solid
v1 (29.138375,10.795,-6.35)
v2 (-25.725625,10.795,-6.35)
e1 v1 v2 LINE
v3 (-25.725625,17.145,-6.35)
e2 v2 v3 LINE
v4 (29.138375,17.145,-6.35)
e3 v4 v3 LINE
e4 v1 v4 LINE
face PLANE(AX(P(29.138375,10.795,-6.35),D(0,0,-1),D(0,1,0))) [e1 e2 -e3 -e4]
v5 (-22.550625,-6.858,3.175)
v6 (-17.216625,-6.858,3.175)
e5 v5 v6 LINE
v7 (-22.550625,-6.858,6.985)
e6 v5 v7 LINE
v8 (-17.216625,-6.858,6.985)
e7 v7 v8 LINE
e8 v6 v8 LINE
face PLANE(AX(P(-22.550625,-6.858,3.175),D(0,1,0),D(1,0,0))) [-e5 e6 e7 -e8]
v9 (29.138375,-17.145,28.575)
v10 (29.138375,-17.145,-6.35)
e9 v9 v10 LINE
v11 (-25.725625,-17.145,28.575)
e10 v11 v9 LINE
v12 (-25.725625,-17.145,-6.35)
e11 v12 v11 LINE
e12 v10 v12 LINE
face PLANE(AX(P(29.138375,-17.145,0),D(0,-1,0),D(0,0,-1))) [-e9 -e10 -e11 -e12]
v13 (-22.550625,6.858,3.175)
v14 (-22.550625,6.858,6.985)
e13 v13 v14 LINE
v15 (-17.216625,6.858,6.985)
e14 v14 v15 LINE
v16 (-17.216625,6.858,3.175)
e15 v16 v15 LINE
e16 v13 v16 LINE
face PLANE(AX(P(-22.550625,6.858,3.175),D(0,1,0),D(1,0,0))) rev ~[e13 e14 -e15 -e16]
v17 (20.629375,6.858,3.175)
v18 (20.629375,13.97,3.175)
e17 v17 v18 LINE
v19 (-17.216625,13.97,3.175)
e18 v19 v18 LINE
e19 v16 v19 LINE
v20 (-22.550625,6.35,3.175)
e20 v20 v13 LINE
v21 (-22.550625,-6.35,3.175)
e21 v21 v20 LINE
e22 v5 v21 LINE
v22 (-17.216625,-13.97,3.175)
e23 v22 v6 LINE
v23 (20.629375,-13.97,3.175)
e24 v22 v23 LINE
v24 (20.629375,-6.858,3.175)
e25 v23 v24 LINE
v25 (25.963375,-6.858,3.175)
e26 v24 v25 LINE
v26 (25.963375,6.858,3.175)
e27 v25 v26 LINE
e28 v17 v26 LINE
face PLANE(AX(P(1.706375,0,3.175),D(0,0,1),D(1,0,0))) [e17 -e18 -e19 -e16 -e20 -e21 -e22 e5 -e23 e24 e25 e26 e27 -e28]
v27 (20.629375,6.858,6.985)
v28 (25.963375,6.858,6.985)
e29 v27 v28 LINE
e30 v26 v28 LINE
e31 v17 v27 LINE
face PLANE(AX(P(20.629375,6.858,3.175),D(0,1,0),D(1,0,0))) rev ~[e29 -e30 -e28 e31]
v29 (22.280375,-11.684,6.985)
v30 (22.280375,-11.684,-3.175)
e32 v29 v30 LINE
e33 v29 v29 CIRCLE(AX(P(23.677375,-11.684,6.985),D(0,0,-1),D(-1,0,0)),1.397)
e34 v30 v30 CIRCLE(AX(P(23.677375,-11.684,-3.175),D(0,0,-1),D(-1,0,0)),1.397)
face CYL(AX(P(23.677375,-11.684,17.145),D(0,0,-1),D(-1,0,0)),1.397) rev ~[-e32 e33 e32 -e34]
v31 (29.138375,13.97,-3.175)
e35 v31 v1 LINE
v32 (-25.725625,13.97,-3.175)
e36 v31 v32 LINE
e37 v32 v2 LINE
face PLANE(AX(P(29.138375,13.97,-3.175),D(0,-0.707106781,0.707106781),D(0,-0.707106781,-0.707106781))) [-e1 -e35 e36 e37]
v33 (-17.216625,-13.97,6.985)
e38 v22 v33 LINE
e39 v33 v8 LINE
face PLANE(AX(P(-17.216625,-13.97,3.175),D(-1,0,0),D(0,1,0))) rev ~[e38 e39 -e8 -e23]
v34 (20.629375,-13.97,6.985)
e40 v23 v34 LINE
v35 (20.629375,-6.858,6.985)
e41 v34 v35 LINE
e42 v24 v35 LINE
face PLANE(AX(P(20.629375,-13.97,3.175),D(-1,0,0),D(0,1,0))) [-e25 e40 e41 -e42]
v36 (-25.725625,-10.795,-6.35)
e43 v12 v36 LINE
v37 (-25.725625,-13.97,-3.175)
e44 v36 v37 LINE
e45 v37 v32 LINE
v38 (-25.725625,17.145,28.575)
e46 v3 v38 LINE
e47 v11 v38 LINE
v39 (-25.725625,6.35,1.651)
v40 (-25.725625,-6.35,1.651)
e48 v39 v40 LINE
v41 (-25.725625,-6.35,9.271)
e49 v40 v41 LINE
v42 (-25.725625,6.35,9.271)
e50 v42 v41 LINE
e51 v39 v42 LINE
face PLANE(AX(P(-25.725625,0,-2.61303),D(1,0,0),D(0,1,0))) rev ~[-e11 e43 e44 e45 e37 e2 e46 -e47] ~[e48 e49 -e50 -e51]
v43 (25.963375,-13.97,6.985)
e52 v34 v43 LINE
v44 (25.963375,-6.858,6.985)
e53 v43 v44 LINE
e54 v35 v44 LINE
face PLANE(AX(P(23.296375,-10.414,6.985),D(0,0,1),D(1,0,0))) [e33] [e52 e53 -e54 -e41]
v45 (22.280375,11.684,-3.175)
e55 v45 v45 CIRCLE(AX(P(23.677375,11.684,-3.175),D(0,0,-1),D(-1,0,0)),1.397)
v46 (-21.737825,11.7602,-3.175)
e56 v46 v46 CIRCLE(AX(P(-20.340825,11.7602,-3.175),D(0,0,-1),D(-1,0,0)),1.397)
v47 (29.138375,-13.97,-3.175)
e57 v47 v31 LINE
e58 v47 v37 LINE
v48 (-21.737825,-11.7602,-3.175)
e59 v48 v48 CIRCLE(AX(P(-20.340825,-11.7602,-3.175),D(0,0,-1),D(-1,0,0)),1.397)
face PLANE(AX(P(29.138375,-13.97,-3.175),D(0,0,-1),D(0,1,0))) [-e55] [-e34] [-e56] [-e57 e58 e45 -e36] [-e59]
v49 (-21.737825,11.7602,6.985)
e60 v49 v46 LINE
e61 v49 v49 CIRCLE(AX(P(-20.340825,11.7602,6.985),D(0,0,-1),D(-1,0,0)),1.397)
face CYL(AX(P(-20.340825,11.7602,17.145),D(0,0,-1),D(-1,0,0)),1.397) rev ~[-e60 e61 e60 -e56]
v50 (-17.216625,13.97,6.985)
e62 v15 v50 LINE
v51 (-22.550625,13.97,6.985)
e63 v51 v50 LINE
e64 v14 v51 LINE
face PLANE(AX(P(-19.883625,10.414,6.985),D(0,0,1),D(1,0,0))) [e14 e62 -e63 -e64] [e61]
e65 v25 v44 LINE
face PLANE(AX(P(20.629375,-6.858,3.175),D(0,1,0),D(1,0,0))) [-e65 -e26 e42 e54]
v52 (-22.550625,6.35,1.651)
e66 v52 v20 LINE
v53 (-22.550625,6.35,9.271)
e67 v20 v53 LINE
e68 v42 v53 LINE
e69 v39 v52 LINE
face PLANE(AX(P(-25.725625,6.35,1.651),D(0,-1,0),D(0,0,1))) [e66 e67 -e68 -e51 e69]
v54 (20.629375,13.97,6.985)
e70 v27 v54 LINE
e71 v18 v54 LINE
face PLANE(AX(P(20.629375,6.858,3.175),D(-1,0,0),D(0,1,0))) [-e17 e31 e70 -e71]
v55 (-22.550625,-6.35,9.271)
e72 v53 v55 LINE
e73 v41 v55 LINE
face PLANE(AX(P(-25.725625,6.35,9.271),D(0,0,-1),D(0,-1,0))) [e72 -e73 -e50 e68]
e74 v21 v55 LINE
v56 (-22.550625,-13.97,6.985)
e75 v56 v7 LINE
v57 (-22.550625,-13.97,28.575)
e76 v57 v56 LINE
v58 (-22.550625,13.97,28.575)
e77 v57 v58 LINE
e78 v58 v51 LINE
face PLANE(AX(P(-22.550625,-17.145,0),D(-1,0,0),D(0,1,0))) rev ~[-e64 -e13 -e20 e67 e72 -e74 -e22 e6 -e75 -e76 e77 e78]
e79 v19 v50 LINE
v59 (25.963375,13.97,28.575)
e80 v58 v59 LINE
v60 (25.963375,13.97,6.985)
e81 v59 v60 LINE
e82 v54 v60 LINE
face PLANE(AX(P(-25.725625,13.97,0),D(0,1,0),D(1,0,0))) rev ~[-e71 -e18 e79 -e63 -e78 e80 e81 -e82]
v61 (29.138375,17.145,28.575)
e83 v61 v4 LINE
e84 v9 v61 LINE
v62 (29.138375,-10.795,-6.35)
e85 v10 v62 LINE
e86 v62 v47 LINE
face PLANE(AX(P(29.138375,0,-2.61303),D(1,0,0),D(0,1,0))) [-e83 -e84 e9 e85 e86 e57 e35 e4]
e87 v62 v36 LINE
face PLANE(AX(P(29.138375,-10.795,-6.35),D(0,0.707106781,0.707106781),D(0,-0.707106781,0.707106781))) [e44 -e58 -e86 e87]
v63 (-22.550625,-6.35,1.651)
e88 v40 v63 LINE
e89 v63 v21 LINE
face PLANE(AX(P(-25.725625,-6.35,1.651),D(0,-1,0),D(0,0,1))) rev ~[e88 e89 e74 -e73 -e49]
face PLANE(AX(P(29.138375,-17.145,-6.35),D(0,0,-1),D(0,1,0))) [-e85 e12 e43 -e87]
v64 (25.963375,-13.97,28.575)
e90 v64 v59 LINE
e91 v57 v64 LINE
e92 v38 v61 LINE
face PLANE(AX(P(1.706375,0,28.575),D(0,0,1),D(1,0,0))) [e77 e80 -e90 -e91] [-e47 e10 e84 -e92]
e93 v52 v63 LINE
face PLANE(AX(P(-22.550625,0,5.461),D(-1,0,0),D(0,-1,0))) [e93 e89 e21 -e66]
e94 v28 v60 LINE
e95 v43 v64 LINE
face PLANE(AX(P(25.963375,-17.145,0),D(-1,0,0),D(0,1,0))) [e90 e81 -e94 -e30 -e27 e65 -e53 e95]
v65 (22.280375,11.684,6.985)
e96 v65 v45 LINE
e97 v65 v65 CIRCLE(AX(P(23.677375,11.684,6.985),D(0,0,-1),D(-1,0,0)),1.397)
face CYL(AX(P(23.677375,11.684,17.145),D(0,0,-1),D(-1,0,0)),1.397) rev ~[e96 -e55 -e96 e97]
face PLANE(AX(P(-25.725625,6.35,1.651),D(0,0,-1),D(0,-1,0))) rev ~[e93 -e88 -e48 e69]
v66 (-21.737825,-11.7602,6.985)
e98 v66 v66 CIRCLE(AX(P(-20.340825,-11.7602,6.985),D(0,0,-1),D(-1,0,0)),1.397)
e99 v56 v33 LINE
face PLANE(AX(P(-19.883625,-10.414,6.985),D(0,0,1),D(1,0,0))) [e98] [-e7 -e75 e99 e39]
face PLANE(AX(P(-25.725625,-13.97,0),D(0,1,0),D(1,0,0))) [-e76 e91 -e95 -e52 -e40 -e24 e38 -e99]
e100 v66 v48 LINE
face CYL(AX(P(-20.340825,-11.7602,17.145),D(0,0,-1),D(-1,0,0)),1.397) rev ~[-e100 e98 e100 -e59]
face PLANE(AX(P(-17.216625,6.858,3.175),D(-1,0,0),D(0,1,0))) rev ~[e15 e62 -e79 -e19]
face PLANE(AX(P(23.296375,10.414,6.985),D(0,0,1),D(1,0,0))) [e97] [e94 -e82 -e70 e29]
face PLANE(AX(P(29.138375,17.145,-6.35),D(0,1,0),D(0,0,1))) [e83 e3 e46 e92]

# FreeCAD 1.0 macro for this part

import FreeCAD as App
import Part
import Sketcher
Q = App.Units.Quantity


def faces_at(feature, points):
    """Names of the faces that lie closest to the given points."""
    faces = feature.Shape.Faces
    near = lambda p: min(range(len(faces)), key=lambda i: faces[i].distToShape(Part.Vertex(*p))[0])
    return sorted({f"Face{near(p) + 1}" for p in points})


def add_polygon(sketch, points):
    """Adds a closed chain of lines whose ends are joined by coincident constraints."""
    first, n = sketch.GeometryCount, len(points)
    for a, b in zip(points, points[1:] + points[:1]):
        sketch.addGeometry(Part.LineSegment(App.Vector(*a, 0), App.Vector(*b, 0)), False)
    for i in range(n):
        sketch.addConstraint(Sketcher.Constraint("Coincident", first + i, 2, first + (i + 1) % n, 1))

doc = App.newDocument("Part")
body = doc.addObject("PartDesign::Body", "Body")

sketch1 = doc.addObject("Sketcher::SketchObject", "Sketch")
body.addObject(sketch1)
sketch1.AttachmentSupport = (doc.XY_Plane, [""])
sketch1.MapMode = "FlatFace"
add_polygon(sketch1, [(-26, 17), (-26, -17), (29, -17), (29, 17)])
sketch1.addConstraint([
    Sketcher.Constraint("Vertical", 0),
    Sketcher.Constraint("Horizontal", 1),
    Sketcher.Constraint("Vertical", 2),
    Sketcher.Constraint("Horizontal", 3),
    Sketcher.Constraint("DistanceX", 1, 1, 1, 2, Q("2.16 in")),
    Sketcher.Constraint("DistanceY", 0, 2, 0, 1, Q("1.35 in")),
    Sketcher.Constraint("DistanceY", 0, 2, -1, 1, Q("0.675 in")),
    Sketcher.Constraint("DistanceX", 0, 2, -1, 1, Q("25.725625 mm")),
])
pad1 = doc.addObject("PartDesign::Pad", "Pad")
body.addObject(pad1)
pad1.Profile = sketch1
pad1.Length = Q("1.125 in")
doc.recompute()

thickness = doc.addObject("PartDesign::Thickness", "Thickness")
body.addObject(thickness)
thickness.Base = (pad1, faces_at(pad1, [(1.706, 0, 28.575)]))
thickness.Value = Q("0.125 in")
thickness.Reversed = True
thickness.Join = "Arc"

sketch2 = doc.addObject("Sketcher::SketchObject", "Sketch001")
body.addObject(sketch2)
sketch2.AttachmentSupport = (doc.XY_Plane, [""])
sketch2.MapMode = "FlatFace"
sketch2.AttachmentOffset = App.Placement(App.Vector(0, 0, 0.125 * 25.4), App.Rotation())
add_polygon(sketch2, [(-23, 14), (-23, 7), (-17, 7), (-17, 14)])
add_polygon(sketch2, [(-23, -7), (-23, -14), (-17, -14), (-17, -7)])
add_polygon(sketch2, [(21, -7), (21, -14), (26, -14), (26, -7)])
add_polygon(sketch2, [(21, 14), (21, 7), (26, 7), (26, 14)])
sketch2.addConstraint([
    Sketcher.Constraint("Vertical", 0),
    Sketcher.Constraint("Horizontal", 1),
    Sketcher.Constraint("Vertical", 2),
    Sketcher.Constraint("Horizontal", 3),
    Sketcher.Constraint("Vertical", 4),
    Sketcher.Constraint("Horizontal", 5),
    Sketcher.Constraint("Vertical", 6),
    Sketcher.Constraint("Horizontal", 7),
    Sketcher.Constraint("Vertical", 8),
    Sketcher.Constraint("Horizontal", 9),
    Sketcher.Constraint("Vertical", 10),
    Sketcher.Constraint("Horizontal", 11),
    Sketcher.Constraint("Vertical", 12),
    Sketcher.Constraint("Horizontal", 13),
    Sketcher.Constraint("Vertical", 14),
    Sketcher.Constraint("Horizontal", 15),
    Sketcher.Constraint("Symmetric", 3, 2, 4, 2, -1),
    Sketcher.Constraint("Symmetric", 1, 2, 6, 2, -1),
    Sketcher.Constraint("Symmetric", 11, 2, 12, 2, -1),
    Sketcher.Constraint("Symmetric", 9, 2, 14, 2, -1),
    Sketcher.Constraint("Horizontal", 5, 2, 8, 2),
    Sketcher.Constraint("Horizontal", 7, 2, 10, 2),
    Sketcher.Constraint("Equal", 7, 9),
    Sketcher.Constraint("DistanceX", 1, 1, 1, 2, Q("0.21 in")),
    Sketcher.Constraint("DistanceY", 0, 2, 0, 1, Q("0.28 in")),
    Sketcher.Constraint("DistanceY", 4, 2, 3, 2, Q("1.1 in")),
    Sketcher.Constraint("DistanceX", 4, 2, 8, 2, Q("1.7 in")),
    Sketcher.Constraint("DistanceX", 0, 2, -1, 1, Q("22.550625 mm")),
])
pad2 = doc.addObject("PartDesign::Pad", "Pad001")
body.addObject(pad2)
pad2.Profile = sketch2
pad2.Length = Q("0.15 in")

sketch3 = doc.addObject("Sketcher::SketchObject", "Sketch002")
body.addObject(sketch3)
sketch3.AttachmentSupport = (doc.YZ_Plane, [""])
sketch3.MapMode = "FlatFace"
sketch3.AttachmentOffset = App.Placement(App.Vector(0, 0, 29.138375), App.Rotation())
add_polygon(sketch3, [(17.1, -6.3), (17.1, 0), (-17.1, 0), (-17.1, -6.3), (-10.8, -6.3), (-14, -3.2), (14, -3.2), (10.8, -6.3)])
sketch3.addConstraint([
    Sketcher.Constraint("Vertical", 0),
    Sketcher.Constraint("Horizontal", 1),
    Sketcher.Constraint("Vertical", 2),
    Sketcher.Constraint("Horizontal", 3),
    Sketcher.Constraint("Horizontal", 5),
    Sketcher.Constraint("Horizontal", 7),
    Sketcher.Constraint("Symmetric", 0, 2, 1, 2, -1, 1),
    Sketcher.Constraint("Symmetric", 3, 2, 6, 2, -2),
    Sketcher.Constraint("Perpendicular", 4, 6),
    Sketcher.Constraint("Equal", 7, 0),
    Sketcher.Constraint("Equal", 4, 6),
    Sketcher.Constraint("DistanceX", 5, 1, 5, 2, Q("1.1 in")),
    Sketcher.Constraint("DistanceX", 1, 2, 1, 1, Q("1.35 in")),
    Sketcher.Constraint("DistanceX", 3, 1, 3, 2, Q("0.25 in")),
])
pad3 = doc.addObject("PartDesign::Pad", "Pad002")
body.addObject(pad3)
pad3.Profile = sketch3
pad3.Length = Q("2.16 in")
pad3.Reversed = True

sketch4 = doc.addObject("Sketcher::SketchObject", "Sketch003")
body.addObject(sketch4)
sketch4.AttachmentSupport = (doc.XY_Plane, [""])
sketch4.MapMode = "FlatFace"
sketch4.AttachmentOffset = App.Placement(App.Vector(0, 0, 0.275 * 25.4), App.Rotation())
sketch4.addGeometry([
    Part.Circle(App.Vector(-20.3, 11.8, 0), App.Vector(0, 0, 1), 1.4),
    Part.Circle(App.Vector(23.7, 11.7, 0), App.Vector(0, 0, 1), 1.4),
    Part.Circle(App.Vector(23.7, -11.7, 0), App.Vector(0, 0, 1), 1.4),
    Part.Circle(App.Vector(-20.3, -11.8, 0), App.Vector(0, 0, 1), 1.4),
], False)
sketch4.addConstraint([
    Sketcher.Constraint("Equal", 0, 1),
    Sketcher.Constraint("Equal", 1, 2),
    Sketcher.Constraint("Equal", 2, 3),
    Sketcher.Constraint("Symmetric", 1, 3, 2, 3, -1),
    Sketcher.Constraint("Symmetric", 0, 3, 3, 3, -1),
    Sketcher.Constraint("Diameter", 0, Q("0.11 in")),
    Sketcher.Constraint("DistanceY", -1, 1, 1, 3, Q("0.46 in")),
    Sketcher.Constraint("DistanceY", -1, 1, 0, 3, Q("0.463 in")),
    Sketcher.Constraint("DistanceX", 0, 3, 1, 3, Q("1.733 in")),
    Sketcher.Constraint("DistanceX", 0, 3, -1, 1, Q("20.340825 mm")),
])
doc.recompute()
hole = doc.addObject("PartDesign::Hole", "Hole")
body.addObject(hole)
hole.Profile = sketch4
hole.ThreadType = "None"
hole.Diameter = Q("0.11 in")
hole.DepthType = "Dimension"
hole.Depth = Q("0.4 in")
hole.DrillPoint = "Flat"

sketch5 = doc.addObject("Sketcher::SketchObject", "Sketch004")
body.addObject(sketch5)
sketch5.AttachmentSupport = (doc.YZ_Plane, [""])
sketch5.MapMode = "FlatFace"
sketch5.AttachmentOffset = App.Placement(App.Vector(0, 0, -25.725625), App.Rotation())
add_polygon(sketch5, [(6, 9), (6, 2), (-6, 2), (-6, 9)])
sketch5.addConstraint([
    Sketcher.Constraint("Vertical", 0),
    Sketcher.Constraint("Horizontal", 1),
    Sketcher.Constraint("Vertical", 2),
    Sketcher.Constraint("Horizontal", 3),
    Sketcher.Constraint("DistanceX", 1, 2, 1, 1, Q("0.5 in")),
    Sketcher.Constraint("DistanceY", 0, 2, 0, 1, Q("0.3 in")),
    Sketcher.Constraint("DistanceX", -1, 1, 0, 2, Q("0.25 in")),
    Sketcher.Constraint("DistanceY", -1, 1, 0, 2, Q("0.065 in")),
])
pocket1 = doc.addObject("PartDesign::Pocket", "Pocket")
body.addObject(pocket1)
pocket1.Profile = sketch5
pocket1.Length = Q("0.125 in")
pocket1.Reversed = True

doc.recompute()
